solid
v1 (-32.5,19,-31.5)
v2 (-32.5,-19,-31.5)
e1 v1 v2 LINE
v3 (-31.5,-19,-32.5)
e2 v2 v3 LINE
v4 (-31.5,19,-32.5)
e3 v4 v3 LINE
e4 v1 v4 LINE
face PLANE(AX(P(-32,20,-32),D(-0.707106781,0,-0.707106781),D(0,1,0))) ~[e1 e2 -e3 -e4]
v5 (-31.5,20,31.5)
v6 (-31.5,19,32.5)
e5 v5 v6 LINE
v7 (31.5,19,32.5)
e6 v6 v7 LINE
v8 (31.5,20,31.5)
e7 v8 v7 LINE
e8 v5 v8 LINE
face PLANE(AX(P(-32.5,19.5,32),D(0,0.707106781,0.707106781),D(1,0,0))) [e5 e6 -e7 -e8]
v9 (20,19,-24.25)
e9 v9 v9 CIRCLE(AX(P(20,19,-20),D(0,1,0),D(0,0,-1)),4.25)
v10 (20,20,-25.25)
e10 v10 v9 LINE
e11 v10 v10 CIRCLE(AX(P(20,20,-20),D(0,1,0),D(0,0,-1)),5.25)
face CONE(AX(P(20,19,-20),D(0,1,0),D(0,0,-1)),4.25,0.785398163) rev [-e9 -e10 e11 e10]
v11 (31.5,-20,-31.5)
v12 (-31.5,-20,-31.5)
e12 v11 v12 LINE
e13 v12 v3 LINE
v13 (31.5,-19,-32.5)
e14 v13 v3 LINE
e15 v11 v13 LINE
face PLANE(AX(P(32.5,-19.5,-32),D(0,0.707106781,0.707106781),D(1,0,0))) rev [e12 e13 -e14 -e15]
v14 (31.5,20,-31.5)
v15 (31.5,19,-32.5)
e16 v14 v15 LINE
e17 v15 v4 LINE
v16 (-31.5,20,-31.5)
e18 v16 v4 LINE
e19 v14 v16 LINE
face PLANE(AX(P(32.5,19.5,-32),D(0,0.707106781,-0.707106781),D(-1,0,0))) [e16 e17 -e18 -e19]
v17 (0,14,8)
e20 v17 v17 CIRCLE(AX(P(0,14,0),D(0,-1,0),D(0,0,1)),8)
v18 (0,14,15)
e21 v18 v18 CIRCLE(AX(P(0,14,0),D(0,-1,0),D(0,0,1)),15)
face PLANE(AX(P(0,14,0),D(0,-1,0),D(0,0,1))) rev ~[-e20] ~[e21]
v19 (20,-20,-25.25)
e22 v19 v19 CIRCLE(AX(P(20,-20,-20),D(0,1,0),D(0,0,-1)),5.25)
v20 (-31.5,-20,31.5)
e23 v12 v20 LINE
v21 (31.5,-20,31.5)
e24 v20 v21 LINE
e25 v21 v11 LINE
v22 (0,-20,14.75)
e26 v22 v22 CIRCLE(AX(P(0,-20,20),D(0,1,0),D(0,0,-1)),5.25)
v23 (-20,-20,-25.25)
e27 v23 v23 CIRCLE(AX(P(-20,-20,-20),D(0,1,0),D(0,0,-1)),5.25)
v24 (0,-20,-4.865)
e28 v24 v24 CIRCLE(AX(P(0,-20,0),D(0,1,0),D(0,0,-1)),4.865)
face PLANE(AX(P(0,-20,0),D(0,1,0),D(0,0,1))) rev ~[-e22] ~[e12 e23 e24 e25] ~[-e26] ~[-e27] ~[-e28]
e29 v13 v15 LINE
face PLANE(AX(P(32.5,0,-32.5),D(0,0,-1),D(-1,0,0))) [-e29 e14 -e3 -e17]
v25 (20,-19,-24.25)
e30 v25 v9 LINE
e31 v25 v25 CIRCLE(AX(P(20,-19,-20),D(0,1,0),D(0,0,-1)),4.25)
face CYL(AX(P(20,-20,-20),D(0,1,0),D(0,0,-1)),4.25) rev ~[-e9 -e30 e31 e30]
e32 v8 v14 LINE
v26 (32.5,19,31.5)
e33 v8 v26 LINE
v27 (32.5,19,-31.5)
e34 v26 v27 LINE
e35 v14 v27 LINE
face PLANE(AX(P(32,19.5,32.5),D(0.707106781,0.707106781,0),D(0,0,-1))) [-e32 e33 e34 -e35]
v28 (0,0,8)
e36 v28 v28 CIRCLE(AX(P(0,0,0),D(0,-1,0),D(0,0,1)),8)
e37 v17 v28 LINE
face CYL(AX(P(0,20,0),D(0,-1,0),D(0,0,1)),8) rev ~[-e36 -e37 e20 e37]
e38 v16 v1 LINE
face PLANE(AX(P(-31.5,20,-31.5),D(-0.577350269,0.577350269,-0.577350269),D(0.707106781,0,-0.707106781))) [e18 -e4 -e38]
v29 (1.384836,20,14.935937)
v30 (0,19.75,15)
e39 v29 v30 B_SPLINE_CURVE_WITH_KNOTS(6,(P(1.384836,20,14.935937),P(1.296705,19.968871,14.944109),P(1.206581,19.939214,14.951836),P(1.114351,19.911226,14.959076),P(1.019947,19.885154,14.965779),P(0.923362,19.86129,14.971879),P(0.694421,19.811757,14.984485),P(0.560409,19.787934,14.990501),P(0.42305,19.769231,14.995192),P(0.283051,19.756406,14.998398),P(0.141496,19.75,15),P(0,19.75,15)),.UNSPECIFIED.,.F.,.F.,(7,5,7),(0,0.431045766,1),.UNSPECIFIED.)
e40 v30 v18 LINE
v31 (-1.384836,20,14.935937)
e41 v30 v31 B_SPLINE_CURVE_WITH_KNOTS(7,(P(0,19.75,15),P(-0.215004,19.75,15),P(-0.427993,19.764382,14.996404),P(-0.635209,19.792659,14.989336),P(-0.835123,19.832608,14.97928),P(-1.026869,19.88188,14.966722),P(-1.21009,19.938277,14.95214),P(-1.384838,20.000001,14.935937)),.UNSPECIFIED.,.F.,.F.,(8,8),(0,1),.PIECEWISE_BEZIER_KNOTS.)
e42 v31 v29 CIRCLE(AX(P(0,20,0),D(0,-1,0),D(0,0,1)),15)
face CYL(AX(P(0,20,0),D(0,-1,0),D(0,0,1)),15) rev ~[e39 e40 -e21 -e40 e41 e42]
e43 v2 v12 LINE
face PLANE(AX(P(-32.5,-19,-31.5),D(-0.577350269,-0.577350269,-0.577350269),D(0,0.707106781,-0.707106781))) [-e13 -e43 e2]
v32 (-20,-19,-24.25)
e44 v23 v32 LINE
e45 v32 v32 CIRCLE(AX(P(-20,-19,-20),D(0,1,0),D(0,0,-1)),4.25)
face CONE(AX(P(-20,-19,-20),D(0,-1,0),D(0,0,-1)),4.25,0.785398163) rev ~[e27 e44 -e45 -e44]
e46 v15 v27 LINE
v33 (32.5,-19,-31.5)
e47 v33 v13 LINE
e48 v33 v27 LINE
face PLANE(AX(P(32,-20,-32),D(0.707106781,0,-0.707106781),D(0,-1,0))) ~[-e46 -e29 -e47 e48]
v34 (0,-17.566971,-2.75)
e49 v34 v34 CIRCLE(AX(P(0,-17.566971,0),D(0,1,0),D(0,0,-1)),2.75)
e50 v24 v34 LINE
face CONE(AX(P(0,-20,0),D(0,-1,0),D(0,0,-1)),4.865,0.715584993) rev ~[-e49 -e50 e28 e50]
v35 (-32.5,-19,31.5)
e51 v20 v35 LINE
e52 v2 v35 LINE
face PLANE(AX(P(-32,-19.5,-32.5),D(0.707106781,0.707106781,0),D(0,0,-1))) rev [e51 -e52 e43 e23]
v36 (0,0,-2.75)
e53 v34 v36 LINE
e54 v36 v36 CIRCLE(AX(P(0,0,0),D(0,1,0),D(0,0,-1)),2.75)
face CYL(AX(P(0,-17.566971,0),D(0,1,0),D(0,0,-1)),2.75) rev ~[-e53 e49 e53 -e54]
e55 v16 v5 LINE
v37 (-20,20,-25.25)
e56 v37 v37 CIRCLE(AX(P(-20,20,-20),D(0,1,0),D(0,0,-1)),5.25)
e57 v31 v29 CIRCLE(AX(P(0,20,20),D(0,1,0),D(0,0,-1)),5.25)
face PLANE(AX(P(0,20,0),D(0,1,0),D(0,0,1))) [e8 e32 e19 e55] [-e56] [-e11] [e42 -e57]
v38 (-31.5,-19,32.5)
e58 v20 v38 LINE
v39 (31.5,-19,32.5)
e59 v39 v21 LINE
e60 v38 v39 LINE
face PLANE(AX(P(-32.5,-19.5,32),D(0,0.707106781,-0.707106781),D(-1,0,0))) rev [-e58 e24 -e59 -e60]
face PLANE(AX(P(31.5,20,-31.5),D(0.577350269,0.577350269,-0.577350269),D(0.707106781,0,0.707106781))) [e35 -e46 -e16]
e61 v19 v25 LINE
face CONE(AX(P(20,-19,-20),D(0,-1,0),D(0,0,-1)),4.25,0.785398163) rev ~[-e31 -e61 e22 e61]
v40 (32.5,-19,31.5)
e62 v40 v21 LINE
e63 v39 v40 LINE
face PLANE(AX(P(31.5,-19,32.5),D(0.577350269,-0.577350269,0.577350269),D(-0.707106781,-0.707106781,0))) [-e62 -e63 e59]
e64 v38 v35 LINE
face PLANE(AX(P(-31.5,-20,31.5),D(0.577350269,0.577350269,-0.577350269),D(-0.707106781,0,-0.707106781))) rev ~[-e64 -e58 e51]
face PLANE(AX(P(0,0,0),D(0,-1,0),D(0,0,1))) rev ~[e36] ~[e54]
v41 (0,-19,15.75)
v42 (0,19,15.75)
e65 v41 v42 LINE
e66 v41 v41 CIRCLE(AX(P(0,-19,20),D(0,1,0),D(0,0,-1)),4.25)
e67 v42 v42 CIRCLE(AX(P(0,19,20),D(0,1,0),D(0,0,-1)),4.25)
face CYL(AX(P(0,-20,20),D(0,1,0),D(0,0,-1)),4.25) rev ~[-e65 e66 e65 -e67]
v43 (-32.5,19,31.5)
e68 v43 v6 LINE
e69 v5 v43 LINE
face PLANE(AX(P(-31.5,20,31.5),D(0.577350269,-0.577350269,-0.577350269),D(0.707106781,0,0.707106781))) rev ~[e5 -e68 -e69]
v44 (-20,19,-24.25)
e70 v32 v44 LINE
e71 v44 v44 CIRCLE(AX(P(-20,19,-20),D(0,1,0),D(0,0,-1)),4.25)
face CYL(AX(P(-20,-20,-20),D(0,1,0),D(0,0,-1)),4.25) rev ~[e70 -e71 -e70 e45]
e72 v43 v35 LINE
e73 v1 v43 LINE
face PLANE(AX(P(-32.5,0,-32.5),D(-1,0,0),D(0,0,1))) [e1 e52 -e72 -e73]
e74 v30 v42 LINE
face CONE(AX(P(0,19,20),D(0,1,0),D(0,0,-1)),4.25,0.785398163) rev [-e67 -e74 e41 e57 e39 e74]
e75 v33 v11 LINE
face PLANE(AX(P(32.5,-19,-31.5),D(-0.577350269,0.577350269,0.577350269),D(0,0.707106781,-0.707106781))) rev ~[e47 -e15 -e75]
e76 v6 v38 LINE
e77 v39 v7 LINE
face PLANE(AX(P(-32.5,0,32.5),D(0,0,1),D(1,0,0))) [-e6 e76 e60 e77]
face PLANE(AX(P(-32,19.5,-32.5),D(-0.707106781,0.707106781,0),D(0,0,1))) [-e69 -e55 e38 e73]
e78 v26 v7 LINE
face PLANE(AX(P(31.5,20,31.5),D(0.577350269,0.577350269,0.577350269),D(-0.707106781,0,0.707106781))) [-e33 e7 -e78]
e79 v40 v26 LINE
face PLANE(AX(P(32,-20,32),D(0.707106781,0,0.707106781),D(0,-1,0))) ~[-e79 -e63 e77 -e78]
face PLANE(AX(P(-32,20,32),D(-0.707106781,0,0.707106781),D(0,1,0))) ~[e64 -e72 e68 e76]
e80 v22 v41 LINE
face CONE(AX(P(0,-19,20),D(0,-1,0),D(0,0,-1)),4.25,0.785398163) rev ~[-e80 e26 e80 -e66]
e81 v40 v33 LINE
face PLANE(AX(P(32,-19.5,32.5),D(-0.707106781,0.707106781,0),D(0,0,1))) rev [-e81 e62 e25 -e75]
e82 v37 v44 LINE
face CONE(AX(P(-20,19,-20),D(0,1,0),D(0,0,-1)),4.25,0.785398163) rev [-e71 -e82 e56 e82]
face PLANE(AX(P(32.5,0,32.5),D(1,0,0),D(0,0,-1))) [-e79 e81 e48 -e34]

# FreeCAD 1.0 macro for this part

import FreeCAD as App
import Part
import Sketcher

V = App.Vector
Q = App.Units.Quantity


def edges_at(feature, points):
    """Names of the edges that pass closest to the given points."""
    edges = feature.Shape.Edges
    near = lambda p: min(range(len(edges)), key=lambda i: edges[i].distToShape(Part.Vertex(*p))[0])
    return sorted({f"Edge{near(p) + 1}" for p in points})

doc = App.newDocument("Part")
body = doc.addObject("PartDesign::Body", "Body")

sketch1 = body.newObject("Sketcher::SketchObject", "Sketch")
sketch1.AttachmentSupport = (doc.getObject("XZ_Plane"), [""])
sketch1.MapMode = "FlatFace"
sketch1.addGeometry([
    Part.LineSegment(V(32.5, 32.5, 0), V(-32.5, 32.5, 0)),
    Part.LineSegment(V(-32.5, 32.5, 0), V(-32.5, -32.5, 0)),
    Part.LineSegment(V(-32.5, -32.5, 0), V(32.5, -32.5, 0)),
    Part.LineSegment(V(32.5, -32.5, 0), V(32.5, 32.5, 0)),
], False)
sketch1.addConstraint([
    Sketcher.Constraint("Coincident", 0, 2, 1, 1),
    Sketcher.Constraint("Coincident", 1, 2, 2, 1),
    Sketcher.Constraint("Coincident", 2, 2, 3, 1),
    Sketcher.Constraint("Coincident", 3, 2, 0, 1),
    Sketcher.Constraint("Horizontal", 0),
    Sketcher.Constraint("Vertical", 1),
    Sketcher.Constraint("Horizontal", 2),
    Sketcher.Constraint("Vertical", 3),
    Sketcher.Constraint("Symmetric", 0, 2, 2, 2, -1, 1),
    Sketcher.Constraint("Equal", 2, 1),
    Sketcher.Constraint("DistanceX", 0, 2, -1, 1, Q("32.5 mm")),
])
pad1 = body.newObject("PartDesign::Pad", "Pad")
pad1.Profile = sketch1
pad1.Length = 40
pad1.Midplane = True

sketch2 = body.newObject("Sketcher::SketchObject", "Sketch001")
sketch2.AttachmentSupport = (doc.getObject("XZ_Plane"), [""])
sketch2.MapMode = "FlatFace"
sketch2.AttachmentOffset = App.Placement(V(0, 0, 20), App.Rotation())
sketch2.addGeometry(Part.Circle(V(-20, -20, 0), V(0, 0, 1), 4.25), False)
sketch2.addConstraint([
    Sketcher.Constraint("Diameter", 0, Q("8.5 mm")),
    Sketcher.Constraint("DistanceX", 0, 3, -1, 1, Q("20 mm")),
    Sketcher.Constraint("DistanceY", 0, 3, -1, 1, Q("20 mm")),
])
doc.recompute()
hole = body.newObject("PartDesign::Hole", "Hole")
hole.Profile = sketch2
hole.ThreadType = "None"
hole.Diameter = 8.5
hole.DepthType = "Dimension"
hole.Depth = 50
hole.DrillPoint = "Flat"

sketch3 = body.newObject("Sketcher::SketchObject", "Sketch002")
sketch3.AttachmentSupport = (doc.getObject("XZ_Plane"), [""])
sketch3.MapMode = "FlatFace"
sketch3.AttachmentOffset = App.Placement(V(0, 0, 20), App.Rotation())
sketch3.addGeometry(Part.Circle(V(20, -20, 0), V(0, 0, 1), 4.25), False)
sketch3.addConstraint([
    Sketcher.Constraint("Diameter", 0, Q("8.5 mm")),
    Sketcher.Constraint("DistanceX", -1, 1, 0, 3, Q("20 mm")),
    Sketcher.Constraint("DistanceY", 0, 3, -1, 1, Q("20 mm")),
])
doc.recompute()
hole2 = body.newObject("PartDesign::Hole", "Hole001")
hole2.Profile = sketch3
hole2.ThreadType = "None"
hole2.Diameter = 8.5
hole2.DepthType = "Dimension"
hole2.Depth = 50
hole2.DrillPoint = "Flat"

sketch4 = body.newObject("Sketcher::SketchObject", "Sketch003")
sketch4.AttachmentSupport = (doc.getObject("XZ_Plane"), [""])
sketch4.MapMode = "FlatFace"
sketch4.AttachmentOffset = App.Placement(V(0, 0, 20), App.Rotation())
sketch4.addGeometry(Part.Circle(V(0, 20, 0), V(0, 0, 1), 4.25), False)
sketch4.addConstraint([
    Sketcher.Constraint("PointOnObject", 0, 3, -2),
    Sketcher.Constraint("Diameter", 0, Q("8.5 mm")),
    Sketcher.Constraint("DistanceY", -1, 1, 0, 3, Q("20 mm")),
])
doc.recompute()
hole3 = body.newObject("PartDesign::Hole", "Hole002")
hole3.Profile = sketch4
hole3.ThreadType = "None"
hole3.Diameter = 8.5
hole3.DepthType = "Dimension"
hole3.Depth = 50
hole3.DrillPoint = "Flat"

sketch5 = body.newObject("Sketcher::SketchObject", "Sketch004")
sketch5.AttachmentSupport = (doc.getObject("XZ_Plane"), [""])
sketch5.MapMode = "FlatFace"
sketch5.AttachmentOffset = App.Placement(V(0, 0, -20), App.Rotation())
sketch5.addGeometry(Part.Circle(V(0, 0, 0), V(0, 0, 1), 8), False)
sketch5.addConstraint([
    Sketcher.Constraint("Coincident", 0, 3, -1, 1),
    Sketcher.Constraint("Diameter", 0, Q("16 mm")),
])
doc.recompute()
hole4 = body.newObject("PartDesign::Hole", "Hole003")
hole4.Profile = sketch5
hole4.ThreadType = "None"
hole4.Diameter = 16
hole4.DepthType = "Dimension"
hole4.Depth = 20
hole4.DrillPoint = "Flat"
hole4.Reversed = True

sketch6 = body.newObject("Sketcher::SketchObject", "Sketch005")
sketch6.AttachmentSupport = (doc.getObject("XZ_Plane"), [""])
sketch6.MapMode = "FlatFace"
sketch6.AttachmentOffset = App.Placement(V(0, 0, 20), App.Rotation())
sketch6.addGeometry(Part.Circle(V(0, 0, 0), V(0, 0, 1), 2.75), False)
sketch6.addConstraint([
    Sketcher.Constraint("Coincident", 0, 3, -1, 1),
    Sketcher.Constraint("Diameter", 0, Q("5.5 mm")),
])
doc.recompute()
hole5 = body.newObject("PartDesign::Hole", "Hole004")
hole5.Profile = sketch6
hole5.ThreadType = "None"
hole5.Diameter = 5.5
hole5.DepthType = "Dimension"
hole5.Depth = 20
hole5.DrillPoint = "Flat"
hole5.HoleCutType = "Countersink"
hole5.HoleCutDiameter = 9.73
hole5.HoleCutCountersinkAngle = 82
doc.recompute()

chamfer = body.newObject("PartDesign::Chamfer", "Chamfer")
chamfer.Base = (hole5, edges_at(hole5, [
    (0, -20, 24.25),
    (0, 20, 15.75),
    (-20, -20, -15.75),
    (-20, 20, -24.25),
    (20, -20, -15.75),
    (20, 20, -24.25),
]))
chamfer.Size = 1
doc.recompute()

chamfer2 = body.newObject("PartDesign::Chamfer", "Chamfer001")
chamfer2.Base = (chamfer, edges_at(chamfer, [
    (0, -20, -32.5),
    (32.5, -20, 0),
    (32.5, 0, -32.5),
    (32.5, 0, 32.5),
    (-32.5, 0, 32.5),
    (0, -20, 32.5),
    (-32.5, -20, 0),
    (-32.5, 0, -32.5),
    (-32.5, 20, 0),
    (0, 20, -32.5),
    (32.5, 20, 0),
    (0, 20, 32.5),
]))
chamfer2.Size = 1

sketch7 = body.newObject("Sketcher::SketchObject", "Sketch006")
sketch7.AttachmentSupport = (doc.getObject("XZ_Plane"), [""])
sketch7.MapMode = "FlatFace"
sketch7.AttachmentOffset = App.Placement(V(0, 0, -20), App.Rotation())
sketch7.addGeometry(Part.Circle(V(0, 0, 0), V(0, 0, 1), 15), False)
sketch7.addConstraint([
    Sketcher.Constraint("Coincident", 0, 3, -1, 1),
    Sketcher.Constraint("Diameter", 0, Q("30 mm")),
])
doc.recompute()
hole6 = body.newObject("PartDesign::Hole", "Hole005")
hole6.Profile = sketch7
hole6.ThreadType = "None"
hole6.Diameter = 30
hole6.DepthType = "Dimension"
hole6.Depth = 6
hole6.DrillPoint = "Flat"
hole6.Reversed = True

doc.recompute()
